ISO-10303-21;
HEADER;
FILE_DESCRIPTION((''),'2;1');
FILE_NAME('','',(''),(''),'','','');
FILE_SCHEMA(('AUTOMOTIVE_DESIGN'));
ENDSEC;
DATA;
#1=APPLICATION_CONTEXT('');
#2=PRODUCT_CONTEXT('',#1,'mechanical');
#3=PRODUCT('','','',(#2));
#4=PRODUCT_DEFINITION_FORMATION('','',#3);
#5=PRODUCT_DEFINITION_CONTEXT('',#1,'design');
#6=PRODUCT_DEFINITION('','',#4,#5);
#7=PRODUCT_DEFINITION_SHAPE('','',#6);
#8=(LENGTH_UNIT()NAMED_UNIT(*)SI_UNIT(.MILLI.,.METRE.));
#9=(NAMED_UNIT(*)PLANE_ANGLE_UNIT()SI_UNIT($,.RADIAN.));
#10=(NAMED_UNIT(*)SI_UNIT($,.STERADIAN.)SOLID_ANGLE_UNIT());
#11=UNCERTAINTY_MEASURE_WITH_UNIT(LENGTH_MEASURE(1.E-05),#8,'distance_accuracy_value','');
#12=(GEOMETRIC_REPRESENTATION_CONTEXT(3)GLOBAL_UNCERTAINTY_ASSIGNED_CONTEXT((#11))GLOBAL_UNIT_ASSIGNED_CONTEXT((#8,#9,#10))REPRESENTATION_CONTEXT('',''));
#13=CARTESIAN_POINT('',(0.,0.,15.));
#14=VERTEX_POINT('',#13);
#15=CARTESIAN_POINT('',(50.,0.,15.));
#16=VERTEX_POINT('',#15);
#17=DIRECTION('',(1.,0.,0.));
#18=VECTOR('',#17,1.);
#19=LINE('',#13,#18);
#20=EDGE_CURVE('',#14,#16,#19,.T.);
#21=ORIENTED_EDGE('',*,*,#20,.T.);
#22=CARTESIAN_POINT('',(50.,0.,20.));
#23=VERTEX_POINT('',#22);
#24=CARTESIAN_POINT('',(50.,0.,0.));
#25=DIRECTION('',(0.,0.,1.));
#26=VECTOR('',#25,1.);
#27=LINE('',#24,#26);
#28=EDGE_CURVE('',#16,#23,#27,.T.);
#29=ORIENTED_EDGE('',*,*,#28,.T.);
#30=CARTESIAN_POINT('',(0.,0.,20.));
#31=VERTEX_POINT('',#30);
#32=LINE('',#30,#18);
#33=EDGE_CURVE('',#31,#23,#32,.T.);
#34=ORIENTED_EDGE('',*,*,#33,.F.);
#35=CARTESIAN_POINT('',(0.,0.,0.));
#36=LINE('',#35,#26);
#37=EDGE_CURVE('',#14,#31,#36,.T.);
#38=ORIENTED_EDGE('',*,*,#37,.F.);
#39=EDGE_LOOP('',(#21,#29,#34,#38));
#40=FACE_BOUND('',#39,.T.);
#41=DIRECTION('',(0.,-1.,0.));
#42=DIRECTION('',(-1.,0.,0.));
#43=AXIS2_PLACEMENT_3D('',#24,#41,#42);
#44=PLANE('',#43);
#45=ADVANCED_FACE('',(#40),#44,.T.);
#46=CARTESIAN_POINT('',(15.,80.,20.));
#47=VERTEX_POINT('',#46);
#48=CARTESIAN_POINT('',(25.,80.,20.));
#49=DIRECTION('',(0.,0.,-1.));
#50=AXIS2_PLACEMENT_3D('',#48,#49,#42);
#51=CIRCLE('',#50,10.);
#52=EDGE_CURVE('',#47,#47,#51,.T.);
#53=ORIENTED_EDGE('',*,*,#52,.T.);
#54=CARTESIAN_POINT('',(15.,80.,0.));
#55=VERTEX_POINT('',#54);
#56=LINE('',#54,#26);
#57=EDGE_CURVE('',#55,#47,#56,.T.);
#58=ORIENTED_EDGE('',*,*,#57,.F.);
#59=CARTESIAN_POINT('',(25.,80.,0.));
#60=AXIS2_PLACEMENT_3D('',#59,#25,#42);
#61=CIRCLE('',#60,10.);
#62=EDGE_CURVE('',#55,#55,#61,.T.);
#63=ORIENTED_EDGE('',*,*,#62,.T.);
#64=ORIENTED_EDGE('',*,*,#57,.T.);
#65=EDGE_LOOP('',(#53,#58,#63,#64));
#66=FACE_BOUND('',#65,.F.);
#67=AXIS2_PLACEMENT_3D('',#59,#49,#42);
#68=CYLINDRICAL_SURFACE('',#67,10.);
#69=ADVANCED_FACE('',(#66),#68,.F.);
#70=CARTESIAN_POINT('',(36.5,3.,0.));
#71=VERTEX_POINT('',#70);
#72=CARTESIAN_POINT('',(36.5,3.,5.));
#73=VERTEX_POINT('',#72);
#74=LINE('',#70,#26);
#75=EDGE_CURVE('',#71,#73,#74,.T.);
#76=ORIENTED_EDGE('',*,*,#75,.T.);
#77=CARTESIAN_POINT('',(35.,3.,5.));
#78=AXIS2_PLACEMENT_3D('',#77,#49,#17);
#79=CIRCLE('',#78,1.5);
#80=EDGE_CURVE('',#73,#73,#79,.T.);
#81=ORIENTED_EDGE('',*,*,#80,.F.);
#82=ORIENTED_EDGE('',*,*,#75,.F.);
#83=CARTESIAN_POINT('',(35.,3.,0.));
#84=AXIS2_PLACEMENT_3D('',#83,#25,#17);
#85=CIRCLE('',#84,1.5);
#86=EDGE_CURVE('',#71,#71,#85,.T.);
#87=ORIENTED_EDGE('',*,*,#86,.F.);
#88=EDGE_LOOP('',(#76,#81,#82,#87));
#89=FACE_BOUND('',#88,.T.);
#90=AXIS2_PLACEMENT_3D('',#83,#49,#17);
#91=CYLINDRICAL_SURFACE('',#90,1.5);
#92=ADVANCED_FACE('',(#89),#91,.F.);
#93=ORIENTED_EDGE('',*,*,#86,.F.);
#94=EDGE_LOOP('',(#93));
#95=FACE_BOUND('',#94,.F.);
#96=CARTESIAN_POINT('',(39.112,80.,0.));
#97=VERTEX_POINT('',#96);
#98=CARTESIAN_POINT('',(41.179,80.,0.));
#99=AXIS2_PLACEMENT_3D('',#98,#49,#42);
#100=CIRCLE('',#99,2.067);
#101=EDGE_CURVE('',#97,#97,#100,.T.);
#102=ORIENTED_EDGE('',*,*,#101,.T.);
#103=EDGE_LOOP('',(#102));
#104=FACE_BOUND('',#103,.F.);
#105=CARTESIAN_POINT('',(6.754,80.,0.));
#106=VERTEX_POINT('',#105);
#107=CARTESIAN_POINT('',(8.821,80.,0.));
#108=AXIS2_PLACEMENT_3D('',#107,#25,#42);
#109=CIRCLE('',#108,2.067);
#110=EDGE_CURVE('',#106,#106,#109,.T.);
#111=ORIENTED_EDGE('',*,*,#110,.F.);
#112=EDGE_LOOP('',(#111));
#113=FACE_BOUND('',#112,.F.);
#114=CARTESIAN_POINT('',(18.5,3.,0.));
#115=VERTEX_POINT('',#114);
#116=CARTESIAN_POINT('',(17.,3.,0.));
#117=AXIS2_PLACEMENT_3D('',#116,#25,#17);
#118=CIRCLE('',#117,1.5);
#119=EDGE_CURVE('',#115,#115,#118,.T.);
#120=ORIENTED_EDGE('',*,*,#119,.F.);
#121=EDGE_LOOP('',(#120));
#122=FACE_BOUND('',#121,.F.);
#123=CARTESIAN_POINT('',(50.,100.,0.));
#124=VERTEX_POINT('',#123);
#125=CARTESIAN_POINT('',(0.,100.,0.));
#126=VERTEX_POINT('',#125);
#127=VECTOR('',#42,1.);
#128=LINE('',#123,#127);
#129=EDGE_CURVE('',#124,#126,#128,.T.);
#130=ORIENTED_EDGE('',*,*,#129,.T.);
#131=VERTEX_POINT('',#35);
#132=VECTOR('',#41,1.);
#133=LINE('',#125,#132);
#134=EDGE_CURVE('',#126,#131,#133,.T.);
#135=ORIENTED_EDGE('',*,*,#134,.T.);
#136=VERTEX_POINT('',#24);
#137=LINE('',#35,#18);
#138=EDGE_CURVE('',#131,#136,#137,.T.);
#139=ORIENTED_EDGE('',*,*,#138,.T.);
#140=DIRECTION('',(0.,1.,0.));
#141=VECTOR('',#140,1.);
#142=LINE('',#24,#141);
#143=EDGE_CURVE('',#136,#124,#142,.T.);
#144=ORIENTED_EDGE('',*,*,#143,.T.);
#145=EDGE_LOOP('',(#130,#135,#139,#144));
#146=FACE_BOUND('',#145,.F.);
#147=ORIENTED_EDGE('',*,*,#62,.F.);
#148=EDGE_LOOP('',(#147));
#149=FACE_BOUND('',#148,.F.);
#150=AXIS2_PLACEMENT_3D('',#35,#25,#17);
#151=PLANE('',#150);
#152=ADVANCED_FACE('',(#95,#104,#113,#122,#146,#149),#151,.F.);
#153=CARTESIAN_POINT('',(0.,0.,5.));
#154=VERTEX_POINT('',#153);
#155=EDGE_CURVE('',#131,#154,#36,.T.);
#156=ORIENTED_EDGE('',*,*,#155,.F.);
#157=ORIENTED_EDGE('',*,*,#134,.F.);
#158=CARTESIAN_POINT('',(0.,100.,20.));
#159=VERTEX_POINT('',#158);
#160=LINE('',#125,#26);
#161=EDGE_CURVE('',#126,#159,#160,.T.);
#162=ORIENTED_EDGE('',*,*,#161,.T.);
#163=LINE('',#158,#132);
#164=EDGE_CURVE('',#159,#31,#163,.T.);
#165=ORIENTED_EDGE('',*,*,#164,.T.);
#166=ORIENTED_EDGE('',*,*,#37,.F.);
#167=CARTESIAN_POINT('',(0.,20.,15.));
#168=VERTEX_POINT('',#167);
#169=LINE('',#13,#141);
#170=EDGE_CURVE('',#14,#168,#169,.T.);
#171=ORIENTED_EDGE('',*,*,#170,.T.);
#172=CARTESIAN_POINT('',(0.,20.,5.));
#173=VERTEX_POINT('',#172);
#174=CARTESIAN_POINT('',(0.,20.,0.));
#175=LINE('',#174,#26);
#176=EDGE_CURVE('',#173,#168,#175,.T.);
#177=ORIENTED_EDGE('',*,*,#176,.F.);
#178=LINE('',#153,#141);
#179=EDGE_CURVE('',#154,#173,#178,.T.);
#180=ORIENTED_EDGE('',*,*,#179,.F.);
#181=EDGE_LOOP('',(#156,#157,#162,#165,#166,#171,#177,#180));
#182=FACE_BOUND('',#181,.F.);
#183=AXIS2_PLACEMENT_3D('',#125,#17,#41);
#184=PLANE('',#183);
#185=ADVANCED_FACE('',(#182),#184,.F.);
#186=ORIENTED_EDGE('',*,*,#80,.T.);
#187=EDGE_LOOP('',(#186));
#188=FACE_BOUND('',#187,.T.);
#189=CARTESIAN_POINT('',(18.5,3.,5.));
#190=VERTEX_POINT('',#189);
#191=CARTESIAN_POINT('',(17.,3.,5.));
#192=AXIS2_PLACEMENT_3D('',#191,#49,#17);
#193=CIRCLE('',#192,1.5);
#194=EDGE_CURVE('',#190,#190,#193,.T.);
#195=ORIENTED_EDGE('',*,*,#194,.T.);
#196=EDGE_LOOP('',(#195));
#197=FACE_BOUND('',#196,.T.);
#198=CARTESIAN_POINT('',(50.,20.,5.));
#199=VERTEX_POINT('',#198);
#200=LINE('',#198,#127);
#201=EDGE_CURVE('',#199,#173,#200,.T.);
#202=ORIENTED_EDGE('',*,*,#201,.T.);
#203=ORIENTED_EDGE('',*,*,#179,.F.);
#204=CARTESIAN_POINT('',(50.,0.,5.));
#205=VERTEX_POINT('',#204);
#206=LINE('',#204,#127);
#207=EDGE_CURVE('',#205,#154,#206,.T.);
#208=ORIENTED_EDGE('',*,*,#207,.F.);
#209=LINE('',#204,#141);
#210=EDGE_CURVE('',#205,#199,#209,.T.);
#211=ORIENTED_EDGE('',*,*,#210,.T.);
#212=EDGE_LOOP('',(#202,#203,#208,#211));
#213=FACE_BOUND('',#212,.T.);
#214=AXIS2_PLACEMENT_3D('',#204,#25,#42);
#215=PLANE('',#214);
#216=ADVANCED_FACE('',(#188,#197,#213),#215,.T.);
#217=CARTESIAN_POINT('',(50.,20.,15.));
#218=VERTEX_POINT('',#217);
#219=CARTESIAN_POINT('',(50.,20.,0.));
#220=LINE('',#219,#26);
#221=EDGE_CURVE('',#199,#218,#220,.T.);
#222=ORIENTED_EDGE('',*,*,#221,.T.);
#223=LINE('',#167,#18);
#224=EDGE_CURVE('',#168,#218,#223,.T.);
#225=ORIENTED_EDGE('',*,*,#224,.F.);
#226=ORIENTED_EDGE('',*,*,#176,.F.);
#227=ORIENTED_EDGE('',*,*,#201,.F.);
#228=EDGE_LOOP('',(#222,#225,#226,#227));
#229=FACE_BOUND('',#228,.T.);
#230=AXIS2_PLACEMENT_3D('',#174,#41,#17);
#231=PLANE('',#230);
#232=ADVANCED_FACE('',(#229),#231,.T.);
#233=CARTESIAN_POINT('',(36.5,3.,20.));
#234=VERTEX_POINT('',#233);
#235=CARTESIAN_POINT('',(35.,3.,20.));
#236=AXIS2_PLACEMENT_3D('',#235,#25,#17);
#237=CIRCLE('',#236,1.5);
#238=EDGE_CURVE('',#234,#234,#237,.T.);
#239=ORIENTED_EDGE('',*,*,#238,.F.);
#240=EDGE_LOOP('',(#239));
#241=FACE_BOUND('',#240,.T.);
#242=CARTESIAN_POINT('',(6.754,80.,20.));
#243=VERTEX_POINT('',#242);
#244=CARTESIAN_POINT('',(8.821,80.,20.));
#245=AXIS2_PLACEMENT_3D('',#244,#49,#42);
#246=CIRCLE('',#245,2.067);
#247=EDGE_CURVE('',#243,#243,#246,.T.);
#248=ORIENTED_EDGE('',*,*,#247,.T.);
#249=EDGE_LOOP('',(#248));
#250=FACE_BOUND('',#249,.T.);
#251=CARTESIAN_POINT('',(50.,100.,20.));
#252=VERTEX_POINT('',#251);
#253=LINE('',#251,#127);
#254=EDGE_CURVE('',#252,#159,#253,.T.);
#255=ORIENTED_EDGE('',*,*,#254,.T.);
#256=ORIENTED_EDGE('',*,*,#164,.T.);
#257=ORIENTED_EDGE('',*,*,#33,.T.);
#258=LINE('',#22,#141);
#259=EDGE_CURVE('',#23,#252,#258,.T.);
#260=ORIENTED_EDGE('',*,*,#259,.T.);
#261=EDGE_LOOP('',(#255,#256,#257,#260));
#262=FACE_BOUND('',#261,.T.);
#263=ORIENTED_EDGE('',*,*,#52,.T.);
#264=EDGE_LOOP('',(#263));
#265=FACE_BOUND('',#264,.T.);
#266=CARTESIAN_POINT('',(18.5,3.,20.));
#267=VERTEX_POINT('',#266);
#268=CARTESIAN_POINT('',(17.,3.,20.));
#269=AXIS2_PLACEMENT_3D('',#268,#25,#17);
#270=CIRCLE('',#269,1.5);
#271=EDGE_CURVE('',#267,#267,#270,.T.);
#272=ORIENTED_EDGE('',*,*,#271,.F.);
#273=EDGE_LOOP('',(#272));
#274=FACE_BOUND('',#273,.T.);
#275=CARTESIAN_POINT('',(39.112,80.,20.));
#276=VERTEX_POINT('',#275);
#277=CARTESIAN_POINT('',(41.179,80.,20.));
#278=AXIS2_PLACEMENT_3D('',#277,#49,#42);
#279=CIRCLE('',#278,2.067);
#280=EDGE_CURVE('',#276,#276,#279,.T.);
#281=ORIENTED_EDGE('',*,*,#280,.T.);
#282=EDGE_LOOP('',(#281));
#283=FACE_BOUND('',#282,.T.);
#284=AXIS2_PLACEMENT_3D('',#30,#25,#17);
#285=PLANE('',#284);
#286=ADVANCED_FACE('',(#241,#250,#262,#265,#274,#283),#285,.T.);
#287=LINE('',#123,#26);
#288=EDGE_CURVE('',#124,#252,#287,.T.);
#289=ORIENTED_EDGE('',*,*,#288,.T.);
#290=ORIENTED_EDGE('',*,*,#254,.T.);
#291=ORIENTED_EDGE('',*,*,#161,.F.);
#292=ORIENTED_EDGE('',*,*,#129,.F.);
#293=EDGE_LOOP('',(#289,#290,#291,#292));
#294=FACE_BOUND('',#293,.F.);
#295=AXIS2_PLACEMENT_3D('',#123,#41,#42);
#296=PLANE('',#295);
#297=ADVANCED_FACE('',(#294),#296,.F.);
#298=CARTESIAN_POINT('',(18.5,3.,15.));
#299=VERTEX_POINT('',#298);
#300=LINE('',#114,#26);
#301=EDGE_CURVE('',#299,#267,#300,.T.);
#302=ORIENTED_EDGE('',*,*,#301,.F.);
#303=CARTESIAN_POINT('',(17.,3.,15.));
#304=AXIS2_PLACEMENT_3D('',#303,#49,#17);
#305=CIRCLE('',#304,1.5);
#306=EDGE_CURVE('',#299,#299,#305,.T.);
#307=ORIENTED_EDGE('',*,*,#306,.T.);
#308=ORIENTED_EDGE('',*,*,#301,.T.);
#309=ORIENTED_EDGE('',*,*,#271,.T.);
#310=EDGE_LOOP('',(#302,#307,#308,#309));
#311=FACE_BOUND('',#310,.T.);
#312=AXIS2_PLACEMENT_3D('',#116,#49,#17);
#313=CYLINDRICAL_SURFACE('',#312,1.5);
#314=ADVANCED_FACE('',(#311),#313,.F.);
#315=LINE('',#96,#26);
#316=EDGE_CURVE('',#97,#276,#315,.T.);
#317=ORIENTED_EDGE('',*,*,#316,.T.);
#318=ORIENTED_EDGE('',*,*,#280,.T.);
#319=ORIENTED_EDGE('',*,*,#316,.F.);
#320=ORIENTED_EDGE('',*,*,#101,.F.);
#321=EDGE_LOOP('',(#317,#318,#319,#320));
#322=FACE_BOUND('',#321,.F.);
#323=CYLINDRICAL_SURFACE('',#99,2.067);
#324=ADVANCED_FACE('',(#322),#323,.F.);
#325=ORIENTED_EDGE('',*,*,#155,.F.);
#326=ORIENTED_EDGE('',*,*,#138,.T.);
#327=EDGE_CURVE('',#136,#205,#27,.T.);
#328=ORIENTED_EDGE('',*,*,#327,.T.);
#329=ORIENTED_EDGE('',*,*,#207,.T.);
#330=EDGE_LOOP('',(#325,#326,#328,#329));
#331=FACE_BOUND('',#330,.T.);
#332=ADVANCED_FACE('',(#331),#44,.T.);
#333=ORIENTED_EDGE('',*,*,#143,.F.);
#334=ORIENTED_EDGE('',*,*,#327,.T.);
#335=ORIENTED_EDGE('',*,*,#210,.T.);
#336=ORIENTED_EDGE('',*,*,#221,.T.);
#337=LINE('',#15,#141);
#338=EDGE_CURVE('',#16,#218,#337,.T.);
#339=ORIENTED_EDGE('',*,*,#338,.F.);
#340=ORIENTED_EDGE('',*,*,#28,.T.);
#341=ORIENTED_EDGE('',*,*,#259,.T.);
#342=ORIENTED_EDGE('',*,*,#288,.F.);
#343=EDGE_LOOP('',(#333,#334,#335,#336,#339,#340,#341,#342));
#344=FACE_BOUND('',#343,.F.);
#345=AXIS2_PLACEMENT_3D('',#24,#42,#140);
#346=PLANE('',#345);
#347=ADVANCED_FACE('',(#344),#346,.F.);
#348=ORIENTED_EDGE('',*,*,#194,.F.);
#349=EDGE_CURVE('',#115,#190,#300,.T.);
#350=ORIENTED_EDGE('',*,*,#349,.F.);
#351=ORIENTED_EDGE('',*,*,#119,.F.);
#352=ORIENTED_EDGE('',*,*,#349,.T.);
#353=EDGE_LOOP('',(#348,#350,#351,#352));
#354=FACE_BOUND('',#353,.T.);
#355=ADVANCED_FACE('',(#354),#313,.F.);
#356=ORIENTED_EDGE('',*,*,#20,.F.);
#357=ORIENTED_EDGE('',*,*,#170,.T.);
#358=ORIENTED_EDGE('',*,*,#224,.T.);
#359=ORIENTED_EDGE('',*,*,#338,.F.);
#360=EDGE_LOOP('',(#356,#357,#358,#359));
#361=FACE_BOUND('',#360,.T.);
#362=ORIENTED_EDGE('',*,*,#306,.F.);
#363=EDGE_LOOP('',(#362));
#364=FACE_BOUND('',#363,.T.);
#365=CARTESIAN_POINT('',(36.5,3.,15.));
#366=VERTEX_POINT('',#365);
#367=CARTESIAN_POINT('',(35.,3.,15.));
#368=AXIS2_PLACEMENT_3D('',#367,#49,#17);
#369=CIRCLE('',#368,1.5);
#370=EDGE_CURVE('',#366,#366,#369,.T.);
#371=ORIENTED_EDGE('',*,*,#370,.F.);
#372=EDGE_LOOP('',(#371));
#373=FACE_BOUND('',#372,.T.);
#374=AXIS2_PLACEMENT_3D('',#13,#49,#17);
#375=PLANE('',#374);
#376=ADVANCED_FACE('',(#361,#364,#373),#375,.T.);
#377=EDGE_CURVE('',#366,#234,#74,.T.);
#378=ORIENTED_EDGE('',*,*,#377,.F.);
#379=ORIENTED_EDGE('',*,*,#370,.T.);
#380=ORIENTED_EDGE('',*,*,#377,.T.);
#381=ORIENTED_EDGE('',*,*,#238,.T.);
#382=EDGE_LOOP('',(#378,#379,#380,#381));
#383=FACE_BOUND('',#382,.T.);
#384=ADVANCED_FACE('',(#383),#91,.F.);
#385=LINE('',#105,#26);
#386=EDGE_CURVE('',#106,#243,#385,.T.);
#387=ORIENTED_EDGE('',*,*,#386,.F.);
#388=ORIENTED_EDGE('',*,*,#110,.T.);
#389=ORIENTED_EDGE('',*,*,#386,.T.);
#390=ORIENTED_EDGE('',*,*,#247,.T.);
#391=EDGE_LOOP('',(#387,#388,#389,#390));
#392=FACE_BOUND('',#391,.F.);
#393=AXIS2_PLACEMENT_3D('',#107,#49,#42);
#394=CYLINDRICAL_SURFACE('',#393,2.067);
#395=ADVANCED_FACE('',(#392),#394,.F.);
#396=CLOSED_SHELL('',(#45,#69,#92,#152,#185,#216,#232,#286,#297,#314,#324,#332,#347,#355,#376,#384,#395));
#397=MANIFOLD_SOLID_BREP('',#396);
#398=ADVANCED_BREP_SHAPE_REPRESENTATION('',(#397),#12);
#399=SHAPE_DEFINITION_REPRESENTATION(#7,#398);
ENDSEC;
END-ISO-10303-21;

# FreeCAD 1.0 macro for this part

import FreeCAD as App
import Part
import Sketcher
Q = App.Units.Quantity


def add_polygon(sketch, points):
    """Adds a closed chain of lines whose ends are joined by coincident constraints."""
    first, n = sketch.GeometryCount, len(points)
    for a, b in zip(points, points[1:] + points[:1]):
        sketch.addGeometry(Part.LineSegment(App.Vector(*a, 0), App.Vector(*b, 0)), False)
    for i in range(n):
        sketch.addConstraint(Sketcher.Constraint("Coincident", first + i, 2, first + (i + 1) % n, 1))

doc = App.newDocument("Part")
body = doc.addObject("PartDesign::Body", "Body")

sketch1 = body.newObject("Sketcher::SketchObject", "Sketch")
sketch1.AttachmentSupport = (doc.getObject("XY_Plane"), [""])
sketch1.MapMode = "FlatFace"
add_polygon(sketch1, [(0, 0), (50, 0), (50, 100), (0, 100)])
sketch1.addGeometry(Part.Circle(App.Vector(17, 3, 0), App.Vector(0, 0, 1), 1.5), False)
sketch1.addGeometry(Part.Circle(App.Vector(35, 3, 0), App.Vector(0, 0, 1), 1.5), False)
sketch1.addConstraint(Sketcher.Constraint("Horizontal", 0))
sketch1.addConstraint(Sketcher.Constraint("Vertical", 1))
sketch1.addConstraint(Sketcher.Constraint("Horizontal", 2))
sketch1.addConstraint(Sketcher.Constraint("Vertical", 3))
sketch1.addConstraint(Sketcher.Constraint("Coincident", 3, 2, -1, 1))
sketch1.addConstraint(Sketcher.Constraint("Equal", 4, 5))
sketch1.addConstraint(Sketcher.Constraint("Horizontal", 4, 3, 5, 3))
sketch1.addConstraint(Sketcher.Constraint("Diameter", 4, Q("0.1181 in")))
sketch1.addConstraint(Sketcher.Constraint("DistanceY", 1, 1, 1, 2, Q("3.937 in")))
sketch1.addConstraint(Sketcher.Constraint("DistanceX", 0, 1, 0, 2, Q("1.9685 in")))
sketch1.addConstraint(Sketcher.Constraint("DistanceY", -1, 1, 4, 3, Q("0.1181 in")))
sketch1.addConstraint(Sketcher.Constraint("DistanceX", 4, 3, 5, 3, Q("18 mm")))
sketch1.addConstraint(Sketcher.Constraint("DistanceX", 5, 3, 0, 2, Q("15 mm")))
pad1 = body.newObject("PartDesign::Pad", "Pad")
pad1.Profile = sketch1
pad1.Length = Q("0.7874016 in")

sketch2 = body.newObject("Sketcher::SketchObject", "Sketch001")
sketch2.AttachmentSupport = (doc.getObject("XZ_Plane"), [""])
sketch2.MapMode = "FlatFace"
add_polygon(sketch2, [(50, 15), (0, 15), (0, 5), (50, 5)])
sketch2.addConstraint(Sketcher.Constraint("Horizontal", 0))
sketch2.addConstraint(Sketcher.Constraint("Vertical", 1))
sketch2.addConstraint(Sketcher.Constraint("Horizontal", 2))
sketch2.addConstraint(Sketcher.Constraint("Vertical", 3))
sketch2.addConstraint(Sketcher.Constraint("PointOnObject", 0, 2, -2))
sketch2.addConstraint(Sketcher.Constraint("DistanceY", 1, 2, 1, 1, Q("0.3937 in")))
sketch2.addConstraint(Sketcher.Constraint("DistanceY", -1, 1, 1, 2, Q("5 mm")))
sketch2.addConstraint(Sketcher.Constraint("DistanceX", 0, 2, 0, 1, Q("1.9685 in")))
pocket1 = body.newObject("PartDesign::Pocket", "Pocket")
pocket1.Profile = sketch2
pocket1.Length = Q("0.7874016 in")

sketch3 = body.newObject("Sketcher::SketchObject", "Sketch002")
sketch3.AttachmentSupport = (doc.getObject("XY_Plane"), [""])
sketch3.MapMode = "FlatFace"
sketch3.addGeometry(Part.Circle(App.Vector(25, 80, 0), App.Vector(0, 0, 1), 10), False)
sketch3.addGeometry(Part.Circle(App.Vector(41.179, 80, 0), App.Vector(0, 0, 1), 2.067), False)
sketch3.addGeometry(Part.Circle(App.Vector(8.821, 80, 0), App.Vector(0, 0, 1), 2.067), False)
sketch3.addConstraint(Sketcher.Constraint("Equal", 1, 2))
sketch3.addConstraint(Sketcher.Constraint("Horizontal", 0, 3, 1, 3))
sketch3.addConstraint(Sketcher.Constraint("Horizontal", 1, 3, 2, 3))
sketch3.addConstraint(Sketcher.Constraint("Diameter", 0, Q("0.7874 in")))
sketch3.addConstraint(Sketcher.Constraint("Diameter", 1, Q("4.134 mm")))
sketch3.addConstraint(Sketcher.Constraint("DistanceX", -1, 1, 0, 3, Q("25 mm")))
sketch3.addConstraint(Sketcher.Constraint("DistanceX", 0, 3, 1, 3, Q("16.179 mm")))
sketch3.addConstraint(Sketcher.Constraint("DistanceX", 2, 3, 0, 3, Q("16.179 mm")))
sketch3.addConstraint(Sketcher.Constraint("DistanceY", -1, 1, 0, 3, Q("3.1496 in")))
pocket2 = body.newObject("PartDesign::Pocket", "Pocket001")
pocket2.Profile = sketch3
pocket2.Length = Q("0.7874016 in")
pocket2.Reversed = True

doc.recompute()
